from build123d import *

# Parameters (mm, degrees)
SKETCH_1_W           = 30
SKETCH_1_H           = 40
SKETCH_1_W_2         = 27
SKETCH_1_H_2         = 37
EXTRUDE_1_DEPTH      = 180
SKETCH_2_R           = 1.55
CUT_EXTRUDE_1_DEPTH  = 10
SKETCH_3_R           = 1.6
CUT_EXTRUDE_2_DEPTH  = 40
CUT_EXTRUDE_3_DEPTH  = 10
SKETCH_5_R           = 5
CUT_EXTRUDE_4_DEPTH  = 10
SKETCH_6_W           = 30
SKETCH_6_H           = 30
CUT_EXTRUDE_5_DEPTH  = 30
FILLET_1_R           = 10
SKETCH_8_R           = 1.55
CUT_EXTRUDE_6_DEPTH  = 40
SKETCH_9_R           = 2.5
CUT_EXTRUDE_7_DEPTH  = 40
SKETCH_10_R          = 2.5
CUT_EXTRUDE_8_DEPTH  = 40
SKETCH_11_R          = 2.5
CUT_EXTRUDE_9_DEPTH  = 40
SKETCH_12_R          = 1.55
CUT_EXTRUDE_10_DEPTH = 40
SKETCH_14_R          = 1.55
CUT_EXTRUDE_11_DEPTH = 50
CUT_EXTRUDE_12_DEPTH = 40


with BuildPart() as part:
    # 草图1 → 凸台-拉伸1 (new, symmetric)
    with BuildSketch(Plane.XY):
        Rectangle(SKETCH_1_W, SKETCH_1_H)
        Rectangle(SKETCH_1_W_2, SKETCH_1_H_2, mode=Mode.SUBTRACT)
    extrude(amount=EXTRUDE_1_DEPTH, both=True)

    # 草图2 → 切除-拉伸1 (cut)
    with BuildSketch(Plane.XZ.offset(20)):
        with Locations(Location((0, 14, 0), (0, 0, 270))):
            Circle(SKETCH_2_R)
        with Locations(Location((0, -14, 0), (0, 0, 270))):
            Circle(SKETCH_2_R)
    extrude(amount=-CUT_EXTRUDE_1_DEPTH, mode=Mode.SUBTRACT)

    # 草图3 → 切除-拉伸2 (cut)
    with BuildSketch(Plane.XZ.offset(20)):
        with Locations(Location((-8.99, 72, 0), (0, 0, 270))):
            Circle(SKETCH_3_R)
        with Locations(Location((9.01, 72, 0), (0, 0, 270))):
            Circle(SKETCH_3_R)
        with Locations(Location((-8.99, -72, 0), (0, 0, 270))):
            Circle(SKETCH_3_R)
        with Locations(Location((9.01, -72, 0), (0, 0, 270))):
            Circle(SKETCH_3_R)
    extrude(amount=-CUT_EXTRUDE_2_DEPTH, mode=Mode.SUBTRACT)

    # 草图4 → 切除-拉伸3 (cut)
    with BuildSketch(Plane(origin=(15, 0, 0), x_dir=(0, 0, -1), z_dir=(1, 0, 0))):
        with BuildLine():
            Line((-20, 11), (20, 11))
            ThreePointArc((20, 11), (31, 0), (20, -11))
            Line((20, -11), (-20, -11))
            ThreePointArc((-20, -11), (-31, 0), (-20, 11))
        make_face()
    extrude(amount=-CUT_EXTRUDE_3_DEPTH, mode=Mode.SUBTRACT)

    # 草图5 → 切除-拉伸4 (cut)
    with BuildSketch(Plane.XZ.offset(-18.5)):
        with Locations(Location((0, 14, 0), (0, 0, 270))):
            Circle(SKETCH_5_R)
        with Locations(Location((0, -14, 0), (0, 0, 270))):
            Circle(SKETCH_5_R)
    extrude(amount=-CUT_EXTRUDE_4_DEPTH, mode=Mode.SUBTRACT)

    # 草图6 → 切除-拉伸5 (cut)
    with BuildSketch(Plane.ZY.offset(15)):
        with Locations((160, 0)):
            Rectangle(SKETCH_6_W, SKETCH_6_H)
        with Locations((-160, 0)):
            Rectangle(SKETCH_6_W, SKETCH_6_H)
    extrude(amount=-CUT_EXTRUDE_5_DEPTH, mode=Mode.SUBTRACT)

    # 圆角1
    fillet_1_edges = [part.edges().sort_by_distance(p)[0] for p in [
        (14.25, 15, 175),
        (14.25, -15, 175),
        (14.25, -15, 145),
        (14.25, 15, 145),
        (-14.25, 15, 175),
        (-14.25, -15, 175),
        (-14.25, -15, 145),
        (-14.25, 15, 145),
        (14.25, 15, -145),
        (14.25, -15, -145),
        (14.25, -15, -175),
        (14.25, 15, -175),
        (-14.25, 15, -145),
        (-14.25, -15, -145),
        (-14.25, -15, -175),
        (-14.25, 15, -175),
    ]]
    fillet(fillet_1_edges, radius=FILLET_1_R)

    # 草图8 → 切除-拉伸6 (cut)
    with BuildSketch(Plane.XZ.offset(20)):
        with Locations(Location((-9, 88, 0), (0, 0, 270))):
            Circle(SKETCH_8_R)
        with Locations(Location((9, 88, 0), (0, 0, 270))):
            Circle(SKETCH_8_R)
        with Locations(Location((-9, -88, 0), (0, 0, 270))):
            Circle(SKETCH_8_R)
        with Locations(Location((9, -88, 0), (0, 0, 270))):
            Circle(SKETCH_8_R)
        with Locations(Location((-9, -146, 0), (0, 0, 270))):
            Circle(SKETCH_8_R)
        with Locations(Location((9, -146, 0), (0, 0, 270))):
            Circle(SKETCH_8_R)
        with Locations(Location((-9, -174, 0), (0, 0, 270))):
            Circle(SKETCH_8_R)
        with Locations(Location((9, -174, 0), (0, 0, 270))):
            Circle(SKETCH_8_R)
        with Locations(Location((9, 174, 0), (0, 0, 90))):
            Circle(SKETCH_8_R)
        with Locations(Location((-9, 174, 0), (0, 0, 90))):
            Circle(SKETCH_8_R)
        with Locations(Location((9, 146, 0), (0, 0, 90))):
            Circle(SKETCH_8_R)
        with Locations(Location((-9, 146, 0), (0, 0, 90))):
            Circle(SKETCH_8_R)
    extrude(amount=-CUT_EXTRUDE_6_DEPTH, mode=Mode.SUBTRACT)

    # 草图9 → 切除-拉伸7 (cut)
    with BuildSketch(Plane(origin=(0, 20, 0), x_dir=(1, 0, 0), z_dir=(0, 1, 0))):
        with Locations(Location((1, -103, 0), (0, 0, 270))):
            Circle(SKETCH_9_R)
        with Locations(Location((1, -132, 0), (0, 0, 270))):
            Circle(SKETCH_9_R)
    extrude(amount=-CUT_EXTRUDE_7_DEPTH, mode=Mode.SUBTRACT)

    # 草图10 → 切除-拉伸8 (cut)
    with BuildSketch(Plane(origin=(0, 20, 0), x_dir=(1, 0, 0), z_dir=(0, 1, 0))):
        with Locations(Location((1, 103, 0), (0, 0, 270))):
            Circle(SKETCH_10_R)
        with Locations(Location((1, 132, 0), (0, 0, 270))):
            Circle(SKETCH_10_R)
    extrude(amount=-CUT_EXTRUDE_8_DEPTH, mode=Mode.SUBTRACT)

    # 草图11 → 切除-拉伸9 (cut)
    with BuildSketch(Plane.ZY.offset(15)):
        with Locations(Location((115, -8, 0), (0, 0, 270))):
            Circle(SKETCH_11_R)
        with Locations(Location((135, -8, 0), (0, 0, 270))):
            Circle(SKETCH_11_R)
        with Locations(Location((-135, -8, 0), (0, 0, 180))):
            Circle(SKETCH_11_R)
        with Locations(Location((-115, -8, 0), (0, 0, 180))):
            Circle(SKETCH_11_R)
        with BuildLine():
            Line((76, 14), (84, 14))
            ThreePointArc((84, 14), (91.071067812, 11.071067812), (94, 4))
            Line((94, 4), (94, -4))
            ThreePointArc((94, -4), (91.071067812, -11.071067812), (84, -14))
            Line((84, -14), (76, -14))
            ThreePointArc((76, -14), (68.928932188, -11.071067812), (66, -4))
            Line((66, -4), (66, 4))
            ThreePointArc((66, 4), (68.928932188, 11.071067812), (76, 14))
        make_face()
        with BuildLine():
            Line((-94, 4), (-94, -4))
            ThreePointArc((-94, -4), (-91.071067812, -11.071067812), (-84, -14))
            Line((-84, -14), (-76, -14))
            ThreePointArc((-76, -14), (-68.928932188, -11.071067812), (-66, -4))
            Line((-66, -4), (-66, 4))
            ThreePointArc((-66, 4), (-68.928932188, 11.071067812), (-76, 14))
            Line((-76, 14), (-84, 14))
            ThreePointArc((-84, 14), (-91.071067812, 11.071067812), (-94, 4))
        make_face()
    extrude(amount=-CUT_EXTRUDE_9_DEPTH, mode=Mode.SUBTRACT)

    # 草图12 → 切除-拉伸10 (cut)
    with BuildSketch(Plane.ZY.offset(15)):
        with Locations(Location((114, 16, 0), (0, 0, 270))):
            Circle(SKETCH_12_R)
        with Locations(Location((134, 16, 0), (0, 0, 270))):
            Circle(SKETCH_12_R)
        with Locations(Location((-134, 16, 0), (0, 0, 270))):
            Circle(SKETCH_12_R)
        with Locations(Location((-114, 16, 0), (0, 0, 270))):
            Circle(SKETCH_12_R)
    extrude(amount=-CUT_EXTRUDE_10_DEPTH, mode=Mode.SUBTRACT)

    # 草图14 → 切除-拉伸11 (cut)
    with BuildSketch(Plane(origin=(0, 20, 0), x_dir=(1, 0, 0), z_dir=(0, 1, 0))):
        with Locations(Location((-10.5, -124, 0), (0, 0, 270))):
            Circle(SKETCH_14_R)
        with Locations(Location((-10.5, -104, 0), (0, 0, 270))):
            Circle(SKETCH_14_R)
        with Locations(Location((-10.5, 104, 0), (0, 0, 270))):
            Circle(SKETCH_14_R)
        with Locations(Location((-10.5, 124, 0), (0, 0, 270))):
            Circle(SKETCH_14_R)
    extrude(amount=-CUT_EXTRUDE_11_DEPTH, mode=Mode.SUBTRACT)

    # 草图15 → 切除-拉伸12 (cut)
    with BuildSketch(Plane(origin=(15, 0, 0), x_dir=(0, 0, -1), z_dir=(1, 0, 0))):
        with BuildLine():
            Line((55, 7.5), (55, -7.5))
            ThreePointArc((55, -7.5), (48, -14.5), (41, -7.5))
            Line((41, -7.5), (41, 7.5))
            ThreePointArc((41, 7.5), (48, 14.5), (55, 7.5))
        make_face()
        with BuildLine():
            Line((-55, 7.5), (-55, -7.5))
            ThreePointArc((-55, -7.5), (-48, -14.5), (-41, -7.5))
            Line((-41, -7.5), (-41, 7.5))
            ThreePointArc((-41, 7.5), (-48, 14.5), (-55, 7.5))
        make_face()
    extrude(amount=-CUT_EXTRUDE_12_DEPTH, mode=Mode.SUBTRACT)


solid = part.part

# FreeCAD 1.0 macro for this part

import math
import FreeCAD as App
import Part
import Sketcher


def edges_at(feature, points):
    """Names of the edges that pass closest to the given points."""
    edges = feature.Shape.Edges
    near = lambda p: min(range(len(edges)), key=lambda i: edges[i].distToShape(Part.Vertex(*p))[0])
    return sorted({f"Edge{near(p) + 1}" for p in points})

doc = App.newDocument("Part")
body = doc.addObject("PartDesign::Body", "Body")

sketch1 = body.newObject("Sketcher::SketchObject", "Sketch")
sketch1.AttachmentSupport = (doc.getObject("XY_Plane"), [""])
sketch1.MapMode = "FlatFace"
sketch1.addGeometry(Part.LineSegment(App.Vector(-15, 20, 0), App.Vector(-15, -20, 0)), False)
sketch1.addGeometry(Part.LineSegment(App.Vector(-15, -20, 0), App.Vector(15, -20, 0)), False)
sketch1.addGeometry(Part.LineSegment(App.Vector(15, -20, 0), App.Vector(15, 20, 0)), False)
sketch1.addGeometry(Part.LineSegment(App.Vector(15, 20, 0), App.Vector(-15, 20, 0)), False)
sketch1.addGeometry(Part.LineSegment(App.Vector(13.5, -18.5, 0), App.Vector(-13.5, -18.5, 0)), False)
sketch1.addGeometry(Part.LineSegment(App.Vector(-13.5, -18.5, 0), App.Vector(-13.5, 18.5, 0)), False)
sketch1.addGeometry(Part.LineSegment(App.Vector(-13.5, 18.5, 0), App.Vector(13.5, 18.5, 0)), False)
sketch1.addGeometry(Part.LineSegment(App.Vector(13.5, 18.5, 0), App.Vector(13.5, -18.5, 0)), False)
sketch1.addConstraint(Sketcher.Constraint("Coincident", 0, 2, 1, 1))
sketch1.addConstraint(Sketcher.Constraint("Coincident", 1, 2, 2, 1))
sketch1.addConstraint(Sketcher.Constraint("Coincident", 2, 2, 3, 1))
sketch1.addConstraint(Sketcher.Constraint("Coincident", 3, 2, 0, 1))
sketch1.addConstraint(Sketcher.Constraint("Coincident", 4, 2, 5, 1))
sketch1.addConstraint(Sketcher.Constraint("Coincident", 5, 2, 6, 1))
sketch1.addConstraint(Sketcher.Constraint("Coincident", 6, 2, 7, 1))
sketch1.addConstraint(Sketcher.Constraint("Coincident", 7, 2, 4, 1))
sketch1.addConstraint(Sketcher.Constraint("Vertical", 0))
sketch1.addConstraint(Sketcher.Constraint("Horizontal", 1))
sketch1.addConstraint(Sketcher.Constraint("Vertical", 2))
sketch1.addConstraint(Sketcher.Constraint("Horizontal", 3))
sketch1.addConstraint(Sketcher.Constraint("Horizontal", 4))
sketch1.addConstraint(Sketcher.Constraint("Vertical", 5))
sketch1.addConstraint(Sketcher.Constraint("Horizontal", 6))
sketch1.addConstraint(Sketcher.Constraint("Vertical", 7))
sketch1.addConstraint(Sketcher.Constraint("Symmetric", 0, 2, 2, 2, -1, 1))
sketch1.addConstraint(Sketcher.Constraint("Symmetric", 4, 2, 6, 2, -1, 1))
sketch1.addConstraint(Sketcher.Constraint("DistanceX", 1, 1, 1, 2, 30.0))
sketch1.addConstraint(Sketcher.Constraint("DistanceX", 4, 2, 4, 1, 27.0))
sketch1.addConstraint(Sketcher.Constraint("DistanceY", 0, 2, 0, 1, 40.0))
sketch1.addConstraint(Sketcher.Constraint("DistanceY", 5, 1, 5, 2, 37.0))
pad1 = body.newObject("PartDesign::Pad", "Pad")
pad1.Profile = sketch1
pad1.Length = 360
pad1.Midplane = True

sketch2 = body.newObject("Sketcher::SketchObject", "Sketch001")
sketch2.AttachmentSupport = (doc.getObject("XZ_Plane"), [""])
sketch2.MapMode = "FlatFace"
sketch2.AttachmentOffset = App.Placement(App.Vector(0, 0, 20), App.Rotation())
sketch2.addGeometry(Part.Circle(App.Vector(0, 14, 0), App.Vector(0, 0, 1), 1.55), False)
sketch2.addGeometry(Part.Circle(App.Vector(0, -14, 0), App.Vector(0, 0, 1), 1.55), False)
sketch2.addConstraint(Sketcher.Constraint("Equal", 0, 1))
sketch2.addConstraint(Sketcher.Constraint("Symmetric", 0, 3, 1, 3, -1, 1))
sketch2.addConstraint(Sketcher.Constraint("PointOnObject", 0, 3, -2))
sketch2.addConstraint(Sketcher.Constraint("Diameter", 0, 3.1))
sketch2.addConstraint(Sketcher.Constraint("DistanceY", -1, 1, 0, 3, 14.0))
pocket1 = body.newObject("PartDesign::Pocket", "Pocket")
pocket1.Profile = sketch2
pocket1.Length = 10

sketch3 = body.newObject("Sketcher::SketchObject", "Sketch002")
sketch3.AttachmentSupport = (doc.getObject("XZ_Plane"), [""])
sketch3.MapMode = "FlatFace"
sketch3.AttachmentOffset = App.Placement(App.Vector(0, 0, 20), App.Rotation())
sketch3.addGeometry(Part.Circle(App.Vector(-8.99, 72, 0), App.Vector(0, 0, 1), 1.6), False)
sketch3.addGeometry(Part.Circle(App.Vector(9.01, 72, 0), App.Vector(0, 0, 1), 1.6), False)
sketch3.addGeometry(Part.Circle(App.Vector(-8.99, -72, 0), App.Vector(0, 0, 1), 1.6), False)
sketch3.addGeometry(Part.Circle(App.Vector(9.01, -72, 0), App.Vector(0, 0, 1), 1.6), False)
sketch3.addConstraint(Sketcher.Constraint("Equal", 0, 1))
sketch3.addConstraint(Sketcher.Constraint("Equal", 1, 2))
sketch3.addConstraint(Sketcher.Constraint("Equal", 2, 3))
sketch3.addConstraint(Sketcher.Constraint("Symmetric", 0, 3, 2, 3, -1))
sketch3.addConstraint(Sketcher.Constraint("Symmetric", 1, 3, 3, 3, -1))
sketch3.addConstraint(Sketcher.Constraint("Horizontal", 0, 3, 1, 3))
sketch3.addConstraint(Sketcher.Constraint("Diameter", 0, 3.2))
sketch3.addConstraint(Sketcher.Constraint("DistanceY", -1, 1, 0, 3, 72.0))
sketch3.addConstraint(Sketcher.Constraint("DistanceX", 0, 3, 1, 3, 18.0))
sketch3.addConstraint(Sketcher.Constraint("DistanceX", 0, 3, -1, 1, 8.99))
pocket2 = body.newObject("PartDesign::Pocket", "Pocket001")
pocket2.Profile = sketch3
pocket2.Length = 40

sketch4 = body.newObject("Sketcher::SketchObject", "Sketch003")
sketch4.AttachmentSupport = (doc.getObject("YZ_Plane"), [""])
sketch4.MapMode = "FlatFace"
sketch4.AttachmentOffset = App.Placement(App.Vector(0, 0, 15), App.Rotation())
sketch4.addGeometry(Part.LineSegment(App.Vector(11, -20, 0), App.Vector(11, 20, 0)), False)
sketch4.addGeometry(Part.ArcOfCircle(Part.Circle(App.Vector(0, 20, 0), App.Vector(0, 0, 1), 11), math.radians(0), math.radians(180)), False)
sketch4.addGeometry(Part.LineSegment(App.Vector(-11, 20, 0), App.Vector(-11, -20, 0)), False)
sketch4.addGeometry(Part.ArcOfCircle(Part.Circle(App.Vector(0, -20, 0), App.Vector(0, 0, 1), 11), math.radians(180), math.radians(360)), False)
sketch4.addConstraint(Sketcher.Constraint("Tangent", 0, 2, 1, 1))
sketch4.addConstraint(Sketcher.Constraint("Tangent", 1, 2, 2, 1))
sketch4.addConstraint(Sketcher.Constraint("Tangent", 2, 2, 3, 1))
sketch4.addConstraint(Sketcher.Constraint("Tangent", 3, 2, 0, 1))
sketch4.addConstraint(Sketcher.Constraint("Vertical", 0))
sketch4.addConstraint(Sketcher.Constraint("Vertical", 2))
sketch4.addConstraint(Sketcher.Constraint("Symmetric", 1, 3, 3, 3, -1, 1))
sketch4.addConstraint(Sketcher.Constraint("Radius", 1, 11.0))
sketch4.addConstraint(Sketcher.Constraint("DistanceY", 0, 1, 0, 2, 40.0))
pocket3 = body.newObject("PartDesign::Pocket", "Pocket002")
pocket3.Profile = sketch4
pocket3.Length = 10

sketch5 = body.newObject("Sketcher::SketchObject", "Sketch004")
sketch5.AttachmentSupport = (doc.getObject("XZ_Plane"), [""])
sketch5.MapMode = "FlatFace"
sketch5.AttachmentOffset = App.Placement(App.Vector(0, 0, -18.5), App.Rotation())
sketch5.addGeometry(Part.Circle(App.Vector(0, 14, 0), App.Vector(0, 0, 1), 5), False)
sketch5.addGeometry(Part.Circle(App.Vector(0, -14, 0), App.Vector(0, 0, 1), 5), False)
sketch5.addConstraint(Sketcher.Constraint("Equal", 0, 1))
sketch5.addConstraint(Sketcher.Constraint("Symmetric", 0, 3, 1, 3, -1, 1))
sketch5.addConstraint(Sketcher.Constraint("PointOnObject", 0, 3, -2))
sketch5.addConstraint(Sketcher.Constraint("Diameter", 0, 10.0))
sketch5.addConstraint(Sketcher.Constraint("DistanceY", -1, 1, 0, 3, 14.0))
pocket4 = body.newObject("PartDesign::Pocket", "Pocket003")
pocket4.Profile = sketch5
pocket4.Length = 10

sketch6 = body.newObject("Sketcher::SketchObject", "Sketch005")
sketch6.AttachmentSupport = (doc.getObject("YZ_Plane"), [""])
sketch6.MapMode = "FlatFace"
sketch6.AttachmentOffset = App.Placement(App.Vector(0, 0, -15), App.Rotation())
sketch6.addGeometry(Part.LineSegment(App.Vector(15, 145, 0), App.Vector(-15, 145, 0)), False)
sketch6.addGeometry(Part.LineSegment(App.Vector(-15, 145, 0), App.Vector(-15, 175, 0)), False)
sketch6.addGeometry(Part.LineSegment(App.Vector(-15, 175, 0), App.Vector(15, 175, 0)), False)
sketch6.addGeometry(Part.LineSegment(App.Vector(15, 175, 0), App.Vector(15, 145, 0)), False)
sketch6.addGeometry(Part.LineSegment(App.Vector(15, -175, 0), App.Vector(-15, -175, 0)), False)
sketch6.addGeometry(Part.LineSegment(App.Vector(-15, -175, 0), App.Vector(-15, -145, 0)), False)
sketch6.addGeometry(Part.LineSegment(App.Vector(-15, -145, 0), App.Vector(15, -145, 0)), False)
sketch6.addGeometry(Part.LineSegment(App.Vector(15, -145, 0), App.Vector(15, -175, 0)), False)
sketch6.addConstraint(Sketcher.Constraint("Coincident", 0, 2, 1, 1))
sketch6.addConstraint(Sketcher.Constraint("Coincident", 1, 2, 2, 1))
sketch6.addConstraint(Sketcher.Constraint("Coincident", 2, 2, 3, 1))
sketch6.addConstraint(Sketcher.Constraint("Coincident", 3, 2, 0, 1))
sketch6.addConstraint(Sketcher.Constraint("Coincident", 4, 2, 5, 1))
sketch6.addConstraint(Sketcher.Constraint("Coincident", 5, 2, 6, 1))
sketch6.addConstraint(Sketcher.Constraint("Coincident", 6, 2, 7, 1))
sketch6.addConstraint(Sketcher.Constraint("Coincident", 7, 2, 4, 1))
sketch6.addConstraint(Sketcher.Constraint("Horizontal", 0))
sketch6.addConstraint(Sketcher.Constraint("Vertical", 1))
sketch6.addConstraint(Sketcher.Constraint("Horizontal", 2))
sketch6.addConstraint(Sketcher.Constraint("Vertical", 3))
sketch6.addConstraint(Sketcher.Constraint("Horizontal", 4))
sketch6.addConstraint(Sketcher.Constraint("Vertical", 5))
sketch6.addConstraint(Sketcher.Constraint("Horizontal", 6))
sketch6.addConstraint(Sketcher.Constraint("Vertical", 7))
sketch6.addConstraint(Sketcher.Constraint("Symmetric", 2, 2, 4, 2, -1, 1))
sketch6.addConstraint(Sketcher.Constraint("Symmetric", 0, 2, 6, 2, -1, 1))
sketch6.addConstraint(Sketcher.Constraint("Vertical", 1, 2, 4, 2))
sketch6.addConstraint(Sketcher.Constraint("Equal", 6, 1))
sketch6.addConstraint(Sketcher.Constraint("DistanceX", 0, 2, 0, 1, 30.0))
sketch6.addConstraint(Sketcher.Constraint("DistanceY", -1, 1, 0, 2, 145.0))
pocket5 = body.newObject("PartDesign::Pocket", "Pocket004")
pocket5.Profile = sketch6
pocket5.Length = 30
pocket5.Reversed = True
doc.recompute()

fillet = body.newObject("PartDesign::Fillet", "Fillet")
fillet.Base = (pocket5, edges_at(pocket5, [
    (14.25, 15, 175),
    (14.25, -15, 175),
    (14.25, -15, 145),
    (14.25, 15, 145),
    (-14.25, 15, 175),
    (-14.25, -15, 175),
    (-14.25, -15, 145),
    (-14.25, 15, 145),
    (14.25, 15, -145),
    (14.25, -15, -145),
    (14.25, -15, -175),
    (14.25, 15, -175),
    (-14.25, 15, -145),
    (-14.25, -15, -145),
    (-14.25, -15, -175),
    (-14.25, 15, -175),
]))
fillet.Radius = 10

sketch7 = body.newObject("Sketcher::SketchObject", "Sketch006")
sketch7.AttachmentSupport = (doc.getObject("XZ_Plane"), [""])
sketch7.MapMode = "FlatFace"
sketch7.AttachmentOffset = App.Placement(App.Vector(0, 0, 20), App.Rotation())
sketch7.addGeometry(Part.Circle(App.Vector(-9, 88, 0), App.Vector(0, 0, 1), 1.55), False)
sketch7.addGeometry(Part.Circle(App.Vector(9, 88, 0), App.Vector(0, 0, 1), 1.55), False)
sketch7.addGeometry(Part.Circle(App.Vector(-9, -88, 0), App.Vector(0, 0, 1), 1.55), False)
sketch7.addGeometry(Part.Circle(App.Vector(9, -88, 0), App.Vector(0, 0, 1), 1.55), False)
sketch7.addGeometry(Part.Circle(App.Vector(-9, -146, 0), App.Vector(0, 0, 1), 1.55), False)
sketch7.addGeometry(Part.Circle(App.Vector(9, -146, 0), App.Vector(0, 0, 1), 1.55), False)
sketch7.addGeometry(Part.Circle(App.Vector(-9, -174, 0), App.Vector(0, 0, 1), 1.55), False)
sketch7.addGeometry(Part.Circle(App.Vector(9, -174, 0), App.Vector(0, 0, 1), 1.55), False)
sketch7.addGeometry(Part.Circle(App.Vector(9, 174, 0), App.Vector(0, 0, 1), 1.55), False)
sketch7.addGeometry(Part.Circle(App.Vector(-9, 174, 0), App.Vector(0, 0, 1), 1.55), False)
sketch7.addGeometry(Part.Circle(App.Vector(9, 146, 0), App.Vector(0, 0, 1), 1.55), False)
sketch7.addGeometry(Part.Circle(App.Vector(-9, 146, 0), App.Vector(0, 0, 1), 1.55), False)
sketch7.addConstraint(Sketcher.Constraint("Equal", 0, 1))
sketch7.addConstraint(Sketcher.Constraint("Equal", 1, 2))
sketch7.addConstraint(Sketcher.Constraint("Equal", 2, 3))
sketch7.addConstraint(Sketcher.Constraint("Equal", 3, 4))
sketch7.addConstraint(Sketcher.Constraint("Equal", 4, 5))
sketch7.addConstraint(Sketcher.Constraint("Equal", 5, 6))
sketch7.addConstraint(Sketcher.Constraint("Equal", 6, 7))
sketch7.addConstraint(Sketcher.Constraint("Equal", 7, 8))
sketch7.addConstraint(Sketcher.Constraint("Equal", 8, 9))
sketch7.addConstraint(Sketcher.Constraint("Equal", 9, 10))
sketch7.addConstraint(Sketcher.Constraint("Equal", 10, 11))
sketch7.addConstraint(Sketcher.Constraint("Symmetric", 1, 3, 2, 3, -1, 1))
sketch7.addConstraint(Sketcher.Constraint("Symmetric", 0, 3, 3, 3, -1, 1))
sketch7.addConstraint(Sketcher.Constraint("Symmetric", 6, 3, 8, 3, -1, 1))
sketch7.addConstraint(Sketcher.Constraint("Symmetric", 7, 3, 9, 3, -1, 1))
sketch7.addConstraint(Sketcher.Constraint("Symmetric", 4, 3, 10, 3, -1, 1))
sketch7.addConstraint(Sketcher.Constraint("Symmetric", 5, 3, 11, 3, -1, 1))
sketch7.addConstraint(Sketcher.Constraint("Symmetric", 0, 3, 1, 3, -2))
sketch7.addConstraint(Sketcher.Constraint("Symmetric", 4, 3, 5, 3, -2))
sketch7.addConstraint(Sketcher.Constraint("Symmetric", 6, 3, 7, 3, -2))
sketch7.addConstraint(Sketcher.Constraint("Vertical", 2, 3, 4, 3))
sketch7.addConstraint(Sketcher.Constraint("Vertical", 4, 3, 6, 3))
sketch7.addConstraint(Sketcher.Constraint("Diameter", 0, 3.1))
sketch7.addConstraint(Sketcher.Constraint("DistanceX", 0, 3, -1, 1, 9.0))
sketch7.addConstraint(Sketcher.Constraint("DistanceY", -1, 1, 0, 3, 88.0))
sketch7.addConstraint(Sketcher.Constraint("DistanceY", 4, 3, -1, 1, 146.0))
sketch7.addConstraint(Sketcher.Constraint("DistanceY", 6, 3, -1, 1, 174.0))
pocket6 = body.newObject("PartDesign::Pocket", "Pocket005")
pocket6.Profile = sketch7
pocket6.Length = 40

sketch8 = body.newObject("Sketcher::SketchObject", "Sketch007")
sketch8.AttachmentSupport = (doc.getObject("XZ_Plane"), [""])
sketch8.MapMode = "FlatFace"
sketch8.AttachmentOffset = App.Placement(App.Vector(0, 0, -20), App.Rotation())
sketch8.addGeometry(Part.Circle(App.Vector(1, 103, 0), App.Vector(0, 0, 1), 2.5), False)
sketch8.addGeometry(Part.Circle(App.Vector(1, 132, 0), App.Vector(0, 0, 1), 2.5), False)
sketch8.addConstraint(Sketcher.Constraint("Equal", 0, 1))
sketch8.addConstraint(Sketcher.Constraint("Vertical", 0, 3, 1, 3))
sketch8.addConstraint(Sketcher.Constraint("Diameter", 0, 5.0))
sketch8.addConstraint(Sketcher.Constraint("DistanceX", -1, 1, 0, 3, 1.0))
sketch8.addConstraint(Sketcher.Constraint("DistanceY", -1, 1, 0, 3, 103.0))
sketch8.addConstraint(Sketcher.Constraint("DistanceY", -1, 1, 1, 3, 132.0))
pocket7 = body.newObject("PartDesign::Pocket", "Pocket006")
pocket7.Profile = sketch8
pocket7.Length = 40
pocket7.Reversed = True

sketch9 = body.newObject("Sketcher::SketchObject", "Sketch008")
sketch9.AttachmentSupport = (doc.getObject("XZ_Plane"), [""])
sketch9.MapMode = "FlatFace"
sketch9.AttachmentOffset = App.Placement(App.Vector(0, 0, -20), App.Rotation())
sketch9.addGeometry(Part.Circle(App.Vector(1, -103, 0), App.Vector(0, 0, 1), 2.5), False)
sketch9.addGeometry(Part.Circle(App.Vector(1, -132, 0), App.Vector(0, 0, 1), 2.5), False)
sketch9.addConstraint(Sketcher.Constraint("Equal", 0, 1))
sketch9.addConstraint(Sketcher.Constraint("Vertical", 0, 3, 1, 3))
sketch9.addConstraint(Sketcher.Constraint("Diameter", 0, 5.0))
sketch9.addConstraint(Sketcher.Constraint("DistanceX", -1, 1, 0, 3, 1.0))
sketch9.addConstraint(Sketcher.Constraint("DistanceY", 0, 3, -1, 1, 103.0))
sketch9.addConstraint(Sketcher.Constraint("DistanceY", 1, 3, -1, 1, 132.0))
pocket8 = body.newObject("PartDesign::Pocket", "Pocket007")
pocket8.Profile = sketch9
pocket8.Length = 40
pocket8.Reversed = True

sketch10 = body.newObject("Sketcher::SketchObject", "Sketch009")
sketch10.AttachmentSupport = (doc.getObject("YZ_Plane"), [""])
sketch10.MapMode = "FlatFace"
sketch10.AttachmentOffset = App.Placement(App.Vector(0, 0, -15), App.Rotation())
sketch10.addGeometry(Part.Circle(App.Vector(-8, 115, 0), App.Vector(0, 0, 1), 2.5), False)
sketch10.addGeometry(Part.Circle(App.Vector(-8, 135, 0), App.Vector(0, 0, 1), 2.5), False)
sketch10.addGeometry(Part.Circle(App.Vector(-8, -135, 0), App.Vector(0, 0, 1), 2.5), False)
sketch10.addGeometry(Part.Circle(App.Vector(-8, -115, 0), App.Vector(0, 0, 1), 2.5), False)
sketch10.addGeometry(Part.LineSegment(App.Vector(14, 84, 0), App.Vector(14, 76, 0)), False)
sketch10.addGeometry(Part.ArcOfCircle(Part.Circle(App.Vector(4, 76, 0), App.Vector(0, 0, 1), 10), math.radians(-90), math.radians(0)), False)
sketch10.addGeometry(Part.LineSegment(App.Vector(4, 66, 0), App.Vector(-4, 66, 0)), False)
sketch10.addGeometry(Part.ArcOfCircle(Part.Circle(App.Vector(-4, 76, 0), App.Vector(0, 0, 1), 10), math.radians(180), math.radians(270)), False)
sketch10.addGeometry(Part.LineSegment(App.Vector(-14, 76, 0), App.Vector(-14, 84, 0)), False)
sketch10.addGeometry(Part.ArcOfCircle(Part.Circle(App.Vector(-4, 84, 0), App.Vector(0, 0, 1), 10), math.radians(90), math.radians(180)), False)
sketch10.addGeometry(Part.LineSegment(App.Vector(-4, 94, 0), App.Vector(4, 94, 0)), False)
sketch10.addGeometry(Part.ArcOfCircle(Part.Circle(App.Vector(4, 84, 0), App.Vector(0, 0, 1), 10), math.radians(0), math.radians(90)), False)
sketch10.addGeometry(Part.LineSegment(App.Vector(4, -94, 0), App.Vector(-4, -94, 0)), False)
sketch10.addGeometry(Part.ArcOfCircle(Part.Circle(App.Vector(-4, -84, 0), App.Vector(0, 0, 1), 10), math.radians(180), math.radians(270)), False)
sketch10.addGeometry(Part.LineSegment(App.Vector(-14, -84, 0), App.Vector(-14, -76, 0)), False)
sketch10.addGeometry(Part.ArcOfCircle(Part.Circle(App.Vector(-4, -76, 0), App.Vector(0, 0, 1), 10), math.radians(90), math.radians(180)), False)
sketch10.addGeometry(Part.LineSegment(App.Vector(-4, -66, 0), App.Vector(4, -66, 0)), False)
sketch10.addGeometry(Part.ArcOfCircle(Part.Circle(App.Vector(4, -76, 0), App.Vector(0, 0, 1), 10), math.radians(0), math.radians(90)), False)
sketch10.addGeometry(Part.LineSegment(App.Vector(14, -76, 0), App.Vector(14, -84, 0)), False)
sketch10.addGeometry(Part.ArcOfCircle(Part.Circle(App.Vector(4, -84, 0), App.Vector(0, 0, 1), 10), math.radians(-90), math.radians(0)), False)
sketch10.addConstraint(Sketcher.Constraint("Tangent", 4, 2, 5, 2))
sketch10.addConstraint(Sketcher.Constraint("Tangent", 5, 1, 6, 1))
sketch10.addConstraint(Sketcher.Constraint("Tangent", 6, 2, 7, 2))
sketch10.addConstraint(Sketcher.Constraint("Tangent", 7, 1, 8, 1))
sketch10.addConstraint(Sketcher.Constraint("Tangent", 8, 2, 9, 2))
sketch10.addConstraint(Sketcher.Constraint("Tangent", 9, 1, 10, 1))
sketch10.addConstraint(Sketcher.Constraint("Tangent", 10, 2, 11, 2))
sketch10.addConstraint(Sketcher.Constraint("Tangent", 11, 1, 4, 1))
sketch10.addConstraint(Sketcher.Constraint("Tangent", 12, 2, 13, 2))
sketch10.addConstraint(Sketcher.Constraint("Tangent", 13, 1, 14, 1))
sketch10.addConstraint(Sketcher.Constraint("Tangent", 14, 2, 15, 2))
sketch10.addConstraint(Sketcher.Constraint("Tangent", 15, 1, 16, 1))
sketch10.addConstraint(Sketcher.Constraint("Tangent", 16, 2, 17, 2))
sketch10.addConstraint(Sketcher.Constraint("Tangent", 17, 1, 18, 1))
sketch10.addConstraint(Sketcher.Constraint("Tangent", 18, 2, 19, 2))
sketch10.addConstraint(Sketcher.Constraint("Tangent", 19, 1, 12, 1))
sketch10.addConstraint(Sketcher.Constraint("Vertical", 4))
sketch10.addConstraint(Sketcher.Constraint("Horizontal", 6))
sketch10.addConstraint(Sketcher.Constraint("Vertical", 8))
sketch10.addConstraint(Sketcher.Constraint("Horizontal", 10))
sketch10.addConstraint(Sketcher.Constraint("Horizontal", 12))
sketch10.addConstraint(Sketcher.Constraint("Vertical", 14))
sketch10.addConstraint(Sketcher.Constraint("Horizontal", 16))
sketch10.addConstraint(Sketcher.Constraint("Vertical", 18))
sketch10.addConstraint(Sketcher.Constraint("Equal", 0, 1))
sketch10.addConstraint(Sketcher.Constraint("Equal", 1, 2))
sketch10.addConstraint(Sketcher.Constraint("Equal", 2, 3))
sketch10.addConstraint(Sketcher.Constraint("Equal", 5, 7))
sketch10.addConstraint(Sketcher.Constraint("Equal", 7, 9))
sketch10.addConstraint(Sketcher.Constraint("Equal", 9, 11))
sketch10.addConstraint(Sketcher.Constraint("Equal", 11, 13))
sketch10.addConstraint(Sketcher.Constraint("Equal", 13, 15))
sketch10.addConstraint(Sketcher.Constraint("Equal", 15, 17))
sketch10.addConstraint(Sketcher.Constraint("Equal", 17, 19))
sketch10.addConstraint(Sketcher.Constraint("Symmetric", 11, 3, 13, 3, -1, 1))
sketch10.addConstraint(Sketcher.Constraint("Symmetric", 7, 3, 17, 3, -1, 1))
sketch10.addConstraint(Sketcher.Constraint("Symmetric", 1, 3, 2, 3, -1))
sketch10.addConstraint(Sketcher.Constraint("Symmetric", 0, 3, 3, 3, -1))
sketch10.addConstraint(Sketcher.Constraint("Vertical", 0, 3, 1, 3))
sketch10.addConstraint(Sketcher.Constraint("Vertical", 9, 3, 13, 3))
sketch10.addConstraint(Sketcher.Constraint("Equal", 16, 4))
sketch10.addConstraint(Sketcher.Constraint("Diameter", 0, 5.0))
sketch10.addConstraint(Sketcher.Constraint("Radius", 5, 10.0))
sketch10.addConstraint(Sketcher.Constraint("DistanceX", 6, 2, 6, 1, 8.0))
sketch10.addConstraint(Sketcher.Constraint("DistanceX", 0, 3, -1, 1, 8.0))
sketch10.addConstraint(Sketcher.Constraint("DistanceY", -1, 1, 0, 3, 115.0))
sketch10.addConstraint(Sketcher.Constraint("DistanceY", -1, 1, 1, 3, 135.0))
sketch10.addConstraint(Sketcher.Constraint("DistanceY", -1, 1, 5, 3, 76.0))
pocket9 = body.newObject("PartDesign::Pocket", "Pocket008")
pocket9.Profile = sketch10
pocket9.Length = 40
pocket9.Reversed = True

sketch11 = body.newObject("Sketcher::SketchObject", "Sketch010")
sketch11.AttachmentSupport = (doc.getObject("YZ_Plane"), [""])
sketch11.MapMode = "FlatFace"
sketch11.AttachmentOffset = App.Placement(App.Vector(0, 0, -15), App.Rotation())
sketch11.addGeometry(Part.Circle(App.Vector(16, 114, 0), App.Vector(0, 0, 1), 1.55), False)
sketch11.addGeometry(Part.Circle(App.Vector(16, 134, 0), App.Vector(0, 0, 1), 1.55), False)
sketch11.addGeometry(Part.Circle(App.Vector(16, -134, 0), App.Vector(0, 0, 1), 1.55), False)
sketch11.addGeometry(Part.Circle(App.Vector(16, -114, 0), App.Vector(0, 0, 1), 1.55), False)
sketch11.addConstraint(Sketcher.Constraint("Equal", 0, 1))
sketch11.addConstraint(Sketcher.Constraint("Equal", 1, 2))
sketch11.addConstraint(Sketcher.Constraint("Equal", 2, 3))
sketch11.addConstraint(Sketcher.Constraint("Symmetric", 1, 3, 2, 3, -1))
sketch11.addConstraint(Sketcher.Constraint("Symmetric", 0, 3, 3, 3, -1))
sketch11.addConstraint(Sketcher.Constraint("Vertical", 0, 3, 1, 3))
sketch11.addConstraint(Sketcher.Constraint("Diameter", 0, 3.1))
sketch11.addConstraint(Sketcher.Constraint("DistanceX", -1, 1, 0, 3, 16.0))
sketch11.addConstraint(Sketcher.Constraint("DistanceY", -1, 1, 0, 3, 114.0))
sketch11.addConstraint(Sketcher.Constraint("DistanceY", -1, 1, 1, 3, 134.0))
pocket10 = body.newObject("PartDesign::Pocket", "Pocket009")
pocket10.Profile = sketch11
pocket10.Length = 40
pocket10.Reversed = True

sketch12 = body.newObject("Sketcher::SketchObject", "Sketch011")
sketch12.AttachmentSupport = (doc.getObject("XZ_Plane"), [""])
sketch12.MapMode = "FlatFace"
sketch12.AttachmentOffset = App.Placement(App.Vector(0, 0, -20), App.Rotation())
sketch12.addGeometry(Part.Circle(App.Vector(-10.5, 124, 0), App.Vector(0, 0, 1), 1.55), False)
sketch12.addGeometry(Part.Circle(App.Vector(-10.5, 104, 0), App.Vector(0, 0, 1), 1.55), False)
sketch12.addGeometry(Part.Circle(App.Vector(-10.5, -104, 0), App.Vector(0, 0, 1), 1.55), False)
sketch12.addGeometry(Part.Circle(App.Vector(-10.5, -124, 0), App.Vector(0, 0, 1), 1.55), False)
sketch12.addConstraint(Sketcher.Constraint("Equal", 0, 1))
sketch12.addConstraint(Sketcher.Constraint("Equal", 1, 2))
sketch12.addConstraint(Sketcher.Constraint("Equal", 2, 3))
sketch12.addConstraint(Sketcher.Constraint("Symmetric", 1, 3, 2, 3, -1))
sketch12.addConstraint(Sketcher.Constraint("Symmetric", 0, 3, 3, 3, -1))
sketch12.addConstraint(Sketcher.Constraint("Vertical", 0, 3, 1, 3))
sketch12.addConstraint(Sketcher.Constraint("Diameter", 0, 3.1))
sketch12.addConstraint(Sketcher.Constraint("DistanceY", -1, 1, 0, 3, 124.0))
sketch12.addConstraint(Sketcher.Constraint("DistanceY", -1, 1, 1, 3, 104.0))
sketch12.addConstraint(Sketcher.Constraint("DistanceX", 0, 3, -1, 1, 10.5))
pocket11 = body.newObject("PartDesign::Pocket", "Pocket010")
pocket11.Profile = sketch12
pocket11.Length = 50
pocket11.Reversed = True

sketch13 = body.newObject("Sketcher::SketchObject", "Sketch012")
sketch13.AttachmentSupport = (doc.getObject("YZ_Plane"), [""])
sketch13.MapMode = "FlatFace"
sketch13.AttachmentOffset = App.Placement(App.Vector(0, 0, 15), App.Rotation())
sketch13.addGeometry(Part.LineSegment(App.Vector(-7.5, -55, 0), App.Vector(7.5, -55, 0)), False)
sketch13.addGeometry(Part.ArcOfCircle(Part.Circle(App.Vector(7.5, -48, 0), App.Vector(0, 0, 1), 7), math.radians(-90), math.radians(90)), False)
sketch13.addGeometry(Part.LineSegment(App.Vector(7.5, -41, 0), App.Vector(-7.5, -41, 0)), False)
sketch13.addGeometry(Part.ArcOfCircle(Part.Circle(App.Vector(-7.5, -48, 0), App.Vector(0, 0, 1), 7), math.radians(90), math.radians(270)), False)
sketch13.addGeometry(Part.LineSegment(App.Vector(7.5, 55, 0), App.Vector(-7.5, 55, 0)), False)
sketch13.addGeometry(Part.ArcOfCircle(Part.Circle(App.Vector(-7.5, 48, 0), App.Vector(0, 0, 1), 7), math.radians(90), math.radians(270)), False)
sketch13.addGeometry(Part.LineSegment(App.Vector(-7.5, 41, 0), App.Vector(7.5, 41, 0)), False)
sketch13.addGeometry(Part.ArcOfCircle(Part.Circle(App.Vector(7.5, 48, 0), App.Vector(0, 0, 1), 7), math.radians(-90), math.radians(90)), False)
sketch13.addConstraint(Sketcher.Constraint("Tangent", 0, 2, 1, 1))
sketch13.addConstraint(Sketcher.Constraint("Tangent", 1, 2, 2, 1))
sketch13.addConstraint(Sketcher.Constraint("Tangent", 2, 2, 3, 1))
sketch13.addConstraint(Sketcher.Constraint("Tangent", 3, 2, 0, 1))
sketch13.addConstraint(Sketcher.Constraint("Tangent", 4, 2, 5, 1))
sketch13.addConstraint(Sketcher.Constraint("Tangent", 5, 2, 6, 1))
sketch13.addConstraint(Sketcher.Constraint("Tangent", 6, 2, 7, 1))
sketch13.addConstraint(Sketcher.Constraint("Tangent", 7, 2, 4, 1))
sketch13.addConstraint(Sketcher.Constraint("Horizontal", 0))
sketch13.addConstraint(Sketcher.Constraint("Horizontal", 2))
sketch13.addConstraint(Sketcher.Constraint("Horizontal", 4))
sketch13.addConstraint(Sketcher.Constraint("Horizontal", 6))
sketch13.addConstraint(Sketcher.Constraint("Equal", 3, 5))
sketch13.addConstraint(Sketcher.Constraint("Symmetric", 1, 3, 5, 3, -1, 1))
sketch13.addConstraint(Sketcher.Constraint("Vertical", 3, 3, 5, 3))
sketch13.addConstraint(Sketcher.Constraint("Vertical", 1, 3, 7, 3))
sketch13.addConstraint(Sketcher.Constraint("Radius", 1, 7.0))
sketch13.addConstraint(Sketcher.Constraint("DistanceX", 0, 1, 0, 2, 15.0))
sketch13.addConstraint(Sketcher.Constraint("DistanceY", 1, 3, -1, 1, 48.0))
pocket12 = body.newObject("PartDesign::Pocket", "Pocket011")
pocket12.Profile = sketch13
pocket12.Length = 40

doc.recompute()
